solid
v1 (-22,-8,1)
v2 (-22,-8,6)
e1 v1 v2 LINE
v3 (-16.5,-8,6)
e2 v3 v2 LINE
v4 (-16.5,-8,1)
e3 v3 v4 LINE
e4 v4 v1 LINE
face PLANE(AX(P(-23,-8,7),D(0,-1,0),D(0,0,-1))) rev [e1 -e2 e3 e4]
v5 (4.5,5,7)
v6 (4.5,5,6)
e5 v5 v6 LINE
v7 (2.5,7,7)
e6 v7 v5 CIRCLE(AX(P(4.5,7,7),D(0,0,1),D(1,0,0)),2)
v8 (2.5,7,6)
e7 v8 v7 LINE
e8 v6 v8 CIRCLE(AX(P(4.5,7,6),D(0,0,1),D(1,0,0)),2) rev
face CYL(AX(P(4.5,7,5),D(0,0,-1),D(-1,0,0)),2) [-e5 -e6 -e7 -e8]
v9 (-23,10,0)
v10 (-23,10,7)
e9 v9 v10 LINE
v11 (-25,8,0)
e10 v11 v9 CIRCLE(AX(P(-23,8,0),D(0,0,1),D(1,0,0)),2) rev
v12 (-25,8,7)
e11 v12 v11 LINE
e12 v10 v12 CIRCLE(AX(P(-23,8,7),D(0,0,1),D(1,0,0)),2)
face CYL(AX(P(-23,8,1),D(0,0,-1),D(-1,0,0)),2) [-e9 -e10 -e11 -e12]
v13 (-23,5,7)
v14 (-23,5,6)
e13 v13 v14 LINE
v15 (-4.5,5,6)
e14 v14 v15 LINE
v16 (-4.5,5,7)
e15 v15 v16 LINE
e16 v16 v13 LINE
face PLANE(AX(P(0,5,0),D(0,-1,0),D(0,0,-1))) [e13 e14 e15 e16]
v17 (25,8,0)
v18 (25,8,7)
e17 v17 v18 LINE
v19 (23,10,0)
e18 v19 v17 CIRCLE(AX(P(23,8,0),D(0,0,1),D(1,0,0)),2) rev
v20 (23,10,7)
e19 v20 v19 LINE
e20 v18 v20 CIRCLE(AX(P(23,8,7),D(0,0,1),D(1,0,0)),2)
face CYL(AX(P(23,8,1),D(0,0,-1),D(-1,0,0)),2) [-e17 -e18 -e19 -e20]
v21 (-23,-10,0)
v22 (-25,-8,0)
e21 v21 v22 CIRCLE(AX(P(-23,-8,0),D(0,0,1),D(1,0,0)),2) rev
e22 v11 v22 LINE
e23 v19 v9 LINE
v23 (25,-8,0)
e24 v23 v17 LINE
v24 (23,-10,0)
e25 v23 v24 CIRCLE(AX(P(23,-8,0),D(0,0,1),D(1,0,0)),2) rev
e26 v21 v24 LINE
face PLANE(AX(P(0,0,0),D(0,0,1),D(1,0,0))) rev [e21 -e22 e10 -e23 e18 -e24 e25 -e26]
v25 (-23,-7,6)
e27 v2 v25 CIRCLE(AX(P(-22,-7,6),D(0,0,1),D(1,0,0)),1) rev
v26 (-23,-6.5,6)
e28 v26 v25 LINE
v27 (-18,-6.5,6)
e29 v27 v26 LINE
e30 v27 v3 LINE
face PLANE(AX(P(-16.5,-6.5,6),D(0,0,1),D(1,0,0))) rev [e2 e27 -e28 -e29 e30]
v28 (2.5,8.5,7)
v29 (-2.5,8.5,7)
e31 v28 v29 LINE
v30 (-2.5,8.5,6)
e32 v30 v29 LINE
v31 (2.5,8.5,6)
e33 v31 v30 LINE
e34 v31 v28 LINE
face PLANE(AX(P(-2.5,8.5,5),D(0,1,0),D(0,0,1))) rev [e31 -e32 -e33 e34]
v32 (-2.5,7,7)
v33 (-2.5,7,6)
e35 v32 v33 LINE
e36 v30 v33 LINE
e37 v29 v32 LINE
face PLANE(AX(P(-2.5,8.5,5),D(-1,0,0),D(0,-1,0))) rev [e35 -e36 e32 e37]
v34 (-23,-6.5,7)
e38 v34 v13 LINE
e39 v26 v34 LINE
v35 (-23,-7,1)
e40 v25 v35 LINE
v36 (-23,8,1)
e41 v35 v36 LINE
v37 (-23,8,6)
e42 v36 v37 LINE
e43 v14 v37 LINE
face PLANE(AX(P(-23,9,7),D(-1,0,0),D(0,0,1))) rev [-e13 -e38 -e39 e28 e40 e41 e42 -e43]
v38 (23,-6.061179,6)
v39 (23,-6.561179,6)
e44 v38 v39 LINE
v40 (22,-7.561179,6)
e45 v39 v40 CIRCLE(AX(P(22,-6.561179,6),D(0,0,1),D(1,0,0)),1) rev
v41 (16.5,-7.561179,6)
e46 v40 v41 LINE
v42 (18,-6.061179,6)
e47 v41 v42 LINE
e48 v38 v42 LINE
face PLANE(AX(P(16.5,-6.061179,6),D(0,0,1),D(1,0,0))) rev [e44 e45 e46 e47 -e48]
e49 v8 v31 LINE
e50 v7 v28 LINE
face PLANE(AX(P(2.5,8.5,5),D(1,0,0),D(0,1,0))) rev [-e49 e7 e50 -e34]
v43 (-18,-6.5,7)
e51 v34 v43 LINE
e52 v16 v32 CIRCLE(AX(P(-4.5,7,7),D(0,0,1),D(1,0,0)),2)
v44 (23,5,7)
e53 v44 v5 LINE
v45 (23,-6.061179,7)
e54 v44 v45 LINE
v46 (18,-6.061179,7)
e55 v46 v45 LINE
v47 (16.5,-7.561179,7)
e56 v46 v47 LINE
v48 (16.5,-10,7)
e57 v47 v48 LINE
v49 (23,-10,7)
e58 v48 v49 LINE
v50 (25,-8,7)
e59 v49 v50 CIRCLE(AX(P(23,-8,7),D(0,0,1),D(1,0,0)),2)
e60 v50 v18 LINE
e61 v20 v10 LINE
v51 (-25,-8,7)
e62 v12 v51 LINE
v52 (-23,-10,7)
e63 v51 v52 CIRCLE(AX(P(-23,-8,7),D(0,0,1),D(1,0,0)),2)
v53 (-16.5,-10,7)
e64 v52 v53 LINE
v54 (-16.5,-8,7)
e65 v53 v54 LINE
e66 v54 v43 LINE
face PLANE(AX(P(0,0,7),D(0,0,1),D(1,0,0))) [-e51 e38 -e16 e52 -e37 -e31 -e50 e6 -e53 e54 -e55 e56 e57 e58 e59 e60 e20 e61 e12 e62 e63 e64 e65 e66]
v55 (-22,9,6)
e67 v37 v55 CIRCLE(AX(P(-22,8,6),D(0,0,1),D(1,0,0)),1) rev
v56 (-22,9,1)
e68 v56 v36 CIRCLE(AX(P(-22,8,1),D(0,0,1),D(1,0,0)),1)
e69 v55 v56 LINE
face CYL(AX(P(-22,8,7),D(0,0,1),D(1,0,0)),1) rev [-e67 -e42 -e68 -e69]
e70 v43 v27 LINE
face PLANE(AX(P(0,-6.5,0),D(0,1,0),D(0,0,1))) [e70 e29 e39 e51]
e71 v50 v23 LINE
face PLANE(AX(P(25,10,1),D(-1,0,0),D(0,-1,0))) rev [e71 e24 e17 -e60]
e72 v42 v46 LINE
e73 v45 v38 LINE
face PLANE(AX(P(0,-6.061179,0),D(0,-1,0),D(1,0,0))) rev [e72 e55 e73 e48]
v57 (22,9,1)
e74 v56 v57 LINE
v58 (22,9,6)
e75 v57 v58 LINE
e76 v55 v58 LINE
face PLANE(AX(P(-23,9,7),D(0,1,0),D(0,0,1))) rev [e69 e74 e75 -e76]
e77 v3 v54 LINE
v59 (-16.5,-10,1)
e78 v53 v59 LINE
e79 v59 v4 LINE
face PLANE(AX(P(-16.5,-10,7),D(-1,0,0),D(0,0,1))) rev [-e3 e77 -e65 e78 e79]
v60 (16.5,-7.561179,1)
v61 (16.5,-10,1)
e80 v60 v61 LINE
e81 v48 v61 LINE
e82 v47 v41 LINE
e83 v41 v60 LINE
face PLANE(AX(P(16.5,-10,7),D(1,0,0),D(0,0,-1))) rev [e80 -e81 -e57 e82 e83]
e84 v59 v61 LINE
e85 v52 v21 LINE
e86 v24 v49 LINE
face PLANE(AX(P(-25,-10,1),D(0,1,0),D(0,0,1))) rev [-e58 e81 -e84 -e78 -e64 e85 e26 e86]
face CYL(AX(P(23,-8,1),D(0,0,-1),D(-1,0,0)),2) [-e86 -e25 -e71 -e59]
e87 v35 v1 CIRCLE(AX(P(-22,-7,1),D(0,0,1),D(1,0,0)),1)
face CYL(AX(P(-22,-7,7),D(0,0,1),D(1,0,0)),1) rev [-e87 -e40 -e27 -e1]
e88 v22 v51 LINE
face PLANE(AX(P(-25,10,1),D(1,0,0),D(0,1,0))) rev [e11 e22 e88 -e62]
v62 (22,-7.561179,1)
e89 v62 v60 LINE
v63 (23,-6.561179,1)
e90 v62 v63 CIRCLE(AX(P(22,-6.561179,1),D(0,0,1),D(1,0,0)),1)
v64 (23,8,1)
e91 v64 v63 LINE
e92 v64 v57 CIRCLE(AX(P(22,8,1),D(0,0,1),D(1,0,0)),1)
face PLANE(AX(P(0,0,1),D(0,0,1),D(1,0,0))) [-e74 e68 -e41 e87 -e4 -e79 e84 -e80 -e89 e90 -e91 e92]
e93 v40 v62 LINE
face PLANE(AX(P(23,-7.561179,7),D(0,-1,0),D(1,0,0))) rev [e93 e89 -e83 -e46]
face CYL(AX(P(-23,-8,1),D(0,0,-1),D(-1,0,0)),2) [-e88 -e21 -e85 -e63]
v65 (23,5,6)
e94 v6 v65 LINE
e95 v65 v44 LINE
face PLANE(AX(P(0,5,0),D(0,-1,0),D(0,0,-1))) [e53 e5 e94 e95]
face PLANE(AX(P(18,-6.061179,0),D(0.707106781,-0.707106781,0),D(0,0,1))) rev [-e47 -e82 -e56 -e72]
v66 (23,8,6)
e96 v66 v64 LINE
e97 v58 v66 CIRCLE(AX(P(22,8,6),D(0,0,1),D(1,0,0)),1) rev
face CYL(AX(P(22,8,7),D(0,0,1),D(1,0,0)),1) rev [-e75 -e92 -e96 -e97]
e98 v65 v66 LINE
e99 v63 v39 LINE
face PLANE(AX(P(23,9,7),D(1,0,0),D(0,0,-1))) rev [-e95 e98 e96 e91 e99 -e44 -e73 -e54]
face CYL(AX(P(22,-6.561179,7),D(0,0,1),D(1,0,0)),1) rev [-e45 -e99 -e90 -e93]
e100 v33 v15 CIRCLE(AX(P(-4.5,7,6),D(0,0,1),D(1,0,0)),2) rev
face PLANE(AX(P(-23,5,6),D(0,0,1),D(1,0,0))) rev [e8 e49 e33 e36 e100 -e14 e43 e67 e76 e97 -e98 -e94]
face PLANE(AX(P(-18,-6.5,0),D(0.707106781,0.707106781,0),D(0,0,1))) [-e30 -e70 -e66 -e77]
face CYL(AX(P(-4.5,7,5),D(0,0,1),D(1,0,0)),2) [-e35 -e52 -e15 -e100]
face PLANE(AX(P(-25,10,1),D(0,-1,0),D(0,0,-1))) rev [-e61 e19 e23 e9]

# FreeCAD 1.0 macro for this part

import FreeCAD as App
import Part
import Sketcher

V = App.Vector
Q = App.Units.Quantity


def edges_at(feature, points):
    """Names of the edges that pass closest to the given points."""
    edges = feature.Shape.Edges
    near = lambda p: min(range(len(edges)), key=lambda i: edges[i].distToShape(Part.Vertex(*p))[0])
    return sorted({f"Edge{near(p) + 1}" for p in points})


def add_polygon(sketch, points):
    """Adds a closed chain of lines whose ends are joined by coincident constraints."""
    first, n = sketch.GeometryCount, len(points)
    for a, b in zip(points, points[1:] + points[:1]):
        sketch.addGeometry(Part.LineSegment(App.Vector(*a, 0), App.Vector(*b, 0)), False)
    for i in range(n):
        sketch.addConstraint(Sketcher.Constraint("Coincident", first + i, 2, first + (i + 1) % n, 1))

doc = App.newDocument("Part")
body = doc.addObject("PartDesign::Body", "Body")

# Sketch on XY plane
sketch1 = doc.addObject("Sketcher::SketchObject", "Sketch")
body.addObject(sketch1)
sketch1.AttachmentSupport = (doc.XY_Plane, [""])
sketch1.MapMode = "FlatFace"
add_polygon(sketch1, [(-25, 10), (-25, -10), (25, -10), (25, 10)])  # lines 0-3
sketch1.addConstraint([
    Sketcher.Constraint("Vertical", 0),
    Sketcher.Constraint("Horizontal", 1),
    Sketcher.Constraint("Vertical", 2),
    Sketcher.Constraint("Horizontal", 3),
    Sketcher.Constraint("Symmetric", 0, 2, 2, 2, -1, 1),
    Sketcher.Constraint("DistanceX", 1, 1, 1, 2, Q("50 mm")),
    Sketcher.Constraint("DistanceY", 0, 2, 0, 1, Q("20 mm")),
])
pad1 = doc.addObject("PartDesign::Pad", "Pad")
body.addObject(pad1)
pad1.Profile = sketch1
pad1.Length = 1

# Sketch on XY plane
sketch2 = doc.addObject("Sketcher::SketchObject", "Sketch001")
body.addObject(sketch2)
sketch2.AttachmentSupport = (doc.XY_Plane, [""])
sketch2.MapMode = "FlatFace"
sketch2.AttachmentOffset = App.Placement(V(0, 0, 1), App.Rotation())
add_polygon(sketch2, [(25, 10), (-25, 10), (-25, -10), (-23, -10), (-23, 9), (23, 9), (23, -10), (25, -10)])  # lines 0-7
sketch2.addConstraint([
    Sketcher.Constraint("Horizontal", 0),
    Sketcher.Constraint("Vertical", 1),
    Sketcher.Constraint("Horizontal", 2),
    Sketcher.Constraint("Vertical", 3),
    Sketcher.Constraint("Horizontal", 4),
    Sketcher.Constraint("Vertical", 5),
    Sketcher.Constraint("Horizontal", 6),
    Sketcher.Constraint("Vertical", 7),
    Sketcher.Constraint("Symmetric", 0, 2, 6, 2, -1, 1),
    Sketcher.Constraint("Symmetric", 2, 2, 5, 2, -2),
    Sketcher.Constraint("DistanceX", 0, 2, 0, 1, Q("50 mm")),
    Sketcher.Constraint("DistanceX", 2, 1, 2, 2, Q("2 mm")),
    Sketcher.Constraint("DistanceY", 1, 2, 1, 1, Q("20 mm")),
    Sketcher.Constraint("DistanceY", 3, 1, 3, 2, Q("19 mm")),
])
pad2 = doc.addObject("PartDesign::Pad", "Pad001")
body.addObject(pad2)
pad2.Profile = sketch2
pad2.Length = 6

# Sketch on XZ plane
sketch3 = doc.addObject("Sketcher::SketchObject", "Sketch002")
body.addObject(sketch3)
sketch3.AttachmentSupport = (doc.XZ_Plane, [""])
sketch3.MapMode = "FlatFace"
sketch3.AttachmentOffset = App.Placement(V(0, 0, -9), App.Rotation())
add_polygon(sketch3, [(-23, 7), (-23, 6), (23, 6), (23, 7)])  # lines 0-3
sketch3.addConstraint([
    Sketcher.Constraint("Vertical", 0),
    Sketcher.Constraint("Horizontal", 1),
    Sketcher.Constraint("Vertical", 2),
    Sketcher.Constraint("Horizontal", 3),
    Sketcher.Constraint("DistanceX", 1, 1, 1, 2, Q("46 mm")),
    Sketcher.Constraint("DistanceY", 0, 2, 0, 1, Q("1 mm")),
    Sketcher.Constraint("DistanceX", 0, 2, -1, 1, Q("23 mm")),
    Sketcher.Constraint("DistanceY", -1, 1, 0, 2, Q("6 mm")),
])
pad3 = doc.addObject("PartDesign::Pad", "Pad002")
body.addObject(pad3)
pad3.Profile = sketch3
pad3.Length = 4

# Sketch on XY plane
sketch4 = doc.addObject("Sketcher::SketchObject", "Sketch003")
body.addObject(sketch4)
sketch4.AttachmentSupport = (doc.XY_Plane, [""])
sketch4.MapMode = "FlatFace"
sketch4.AttachmentOffset = App.Placement(V(0, 0, 1), App.Rotation())
add_polygon(sketch4, [(-23, -8), (-23, -10), (-16.5, -10), (-16.5, -8)])  # lines 0-3
add_polygon(sketch4, [(16.5, -7.561179), (16.5, -10), (23, -10), (23, -7.561179)])  # lines 4-7
sketch4.addConstraint([
    Sketcher.Constraint("Vertical", 0),
    Sketcher.Constraint("Horizontal", 1),
    Sketcher.Constraint("Vertical", 2),
    Sketcher.Constraint("Horizontal", 3),
    Sketcher.Constraint("Vertical", 4),
    Sketcher.Constraint("Horizontal", 5),
    Sketcher.Constraint("Vertical", 6),
    Sketcher.Constraint("Horizontal", 7),
    Sketcher.Constraint("Symmetric", 1, 2, 4, 2, -2),
    Sketcher.Constraint("Equal", 3, 5),
    Sketcher.Constraint("DistanceY", 0, 2, 0, 1, Q("2 mm")),
    Sketcher.Constraint("DistanceX", 1, 1, 1, 2, Q("6.5 mm")),
    Sketcher.Constraint("DistanceX", 0, 2, -1, 1, Q("23 mm")),
    Sketcher.Constraint("DistanceY", 0, 2, -1, 1, Q("10 mm")),
    Sketcher.Constraint("DistanceY", 4, 2, 4, 1, Q("2.438821 mm")),
])
pad4 = doc.addObject("PartDesign::Pad", "Pad003")
body.addObject(pad4)
pad4.Profile = sketch4
pad4.Length = 6

# Sketch on XZ plane
sketch5 = doc.addObject("Sketcher::SketchObject", "Sketch004")
body.addObject(sketch5)
sketch5.AttachmentSupport = (doc.XZ_Plane, [""])
sketch5.MapMode = "FlatFace"
sketch5.AttachmentOffset = App.Placement(V(0, 0, 8), App.Rotation())
add_polygon(sketch5, [(-23, 6), (-23, 7), (-16.5, 7), (-16.5, 6)])  # lines 0-3
sketch5.addConstraint([
    Sketcher.Constraint("Vertical", 0),
    Sketcher.Constraint("Horizontal", 1),
    Sketcher.Constraint("Vertical", 2),
    Sketcher.Constraint("Horizontal", 3),
    Sketcher.Constraint("DistanceY", 0, 1, 0, 2, Q("1 mm")),
    Sketcher.Constraint("DistanceX", 1, 1, 1, 2, Q("6.5 mm")),
    Sketcher.Constraint("DistanceX", 0, 2, -1, 1, Q("23 mm")),
    Sketcher.Constraint("DistanceY", -1, 1, 0, 2, Q("7 mm")),
])
pad5 = doc.addObject("PartDesign::Pad", "Pad004")
body.addObject(pad5)
pad5.Profile = sketch5
pad5.Length = 1.5
pad5.Reversed = True

# Sketch on XZ plane
sketch6 = doc.addObject("Sketcher::SketchObject", "Sketch005")
body.addObject(sketch6)
sketch6.AttachmentSupport = (doc.XZ_Plane, [""])
sketch6.MapMode = "FlatFace"
sketch6.AttachmentOffset = App.Placement(V(0, 0, 7.561179), App.Rotation())
add_polygon(sketch6, [(16.5, 6), (16.5, 7), (23, 7), (23, 6)])  # lines 0-3
sketch6.addConstraint([
    Sketcher.Constraint("Vertical", 0),
    Sketcher.Constraint("Horizontal", 1),
    Sketcher.Constraint("Vertical", 2),
    Sketcher.Constraint("Horizontal", 3),
    Sketcher.Constraint("DistanceY", 0, 1, 0, 2, Q("1 mm")),
    Sketcher.Constraint("DistanceX", 1, 1, 1, 2, Q("6.5 mm")),
    Sketcher.Constraint("DistanceY", -1, 1, 0, 2, Q("7 mm")),
    Sketcher.Constraint("DistanceX", -1, 1, 1, 2, Q("23 mm")),
])
pad6 = doc.addObject("PartDesign::Pad", "Pad005")
body.addObject(pad6)
pad6.Profile = sketch6
pad6.Length = 1.5
pad6.Reversed = True
doc.recompute()

chamfer = doc.addObject("PartDesign::Chamfer", "Chamfer")
body.addObject(chamfer)
chamfer.Base = (pad6, edges_at(pad6, [(16.5, -6.061, 6.5), (-16.5, -6.5, 6.5)]))
chamfer.Size = 1.5
doc.recompute()

fillet = doc.addObject("PartDesign::Fillet", "Fillet")
body.addObject(fillet)
fillet.Base = (chamfer, edges_at(chamfer, [
    (25, -10, 3.5),
    (-25, -10, 3.5),
    (-25, 10, 3.5),
    (25, 10, 3.5),
]))
fillet.Radius = 2
doc.recompute()

fillet2 = doc.addObject("PartDesign::Fillet", "Fillet001")
body.addObject(fillet2)
fillet2.Base = (fillet, edges_at(fillet, [
    (23, 9, 3.5),
    (-23, 9, 3.5),
    (-23, -8, 3.5),
    (23, -7.561, 3.5),
]))
fillet2.Radius = 1

# Sketch on XY plane
sketch7 = doc.addObject("Sketcher::SketchObject", "Sketch006")
body.addObject(sketch7)
sketch7.AttachmentSupport = (doc.XY_Plane, [""])
sketch7.MapMode = "FlatFace"
sketch7.AttachmentOffset = App.Placement(V(0, 0, 7), App.Rotation())
add_polygon(sketch7, [(-2.5, 8.5), (-2.5, 5), (2.5, 5), (2.5, 8.5)])  # lines 0-3
sketch7.addConstraint([
    Sketcher.Constraint("Vertical", 0),
    Sketcher.Constraint("Horizontal", 1),
    Sketcher.Constraint("Vertical", 2),
    Sketcher.Constraint("Horizontal", 3),
    Sketcher.Constraint("DistanceX", 1, 1, 1, 2, Q("5 mm")),
    Sketcher.Constraint("DistanceY", 0, 2, 0, 1, Q("3.5 mm")),
    Sketcher.Constraint("DistanceY", -1, 1, 0, 2, Q("5 mm")),
    Sketcher.Constraint("DistanceX", 0, 2, -1, 1, Q("2.5 mm")),
])
pocket1 = doc.addObject("PartDesign::Pocket", "Pocket")
body.addObject(pocket1)
pocket1.Profile = sketch7
pocket1.Length = 2
doc.recompute()

fillet3 = doc.addObject("PartDesign::Fillet", "Fillet002")
body.addObject(fillet3)
fillet3.Base = (pocket1, edges_at(pocket1, [(-2.5, 5, 6.5), (2.5, 5, 6.5)]))
fillet3.Radius = 2

doc.recompute()
